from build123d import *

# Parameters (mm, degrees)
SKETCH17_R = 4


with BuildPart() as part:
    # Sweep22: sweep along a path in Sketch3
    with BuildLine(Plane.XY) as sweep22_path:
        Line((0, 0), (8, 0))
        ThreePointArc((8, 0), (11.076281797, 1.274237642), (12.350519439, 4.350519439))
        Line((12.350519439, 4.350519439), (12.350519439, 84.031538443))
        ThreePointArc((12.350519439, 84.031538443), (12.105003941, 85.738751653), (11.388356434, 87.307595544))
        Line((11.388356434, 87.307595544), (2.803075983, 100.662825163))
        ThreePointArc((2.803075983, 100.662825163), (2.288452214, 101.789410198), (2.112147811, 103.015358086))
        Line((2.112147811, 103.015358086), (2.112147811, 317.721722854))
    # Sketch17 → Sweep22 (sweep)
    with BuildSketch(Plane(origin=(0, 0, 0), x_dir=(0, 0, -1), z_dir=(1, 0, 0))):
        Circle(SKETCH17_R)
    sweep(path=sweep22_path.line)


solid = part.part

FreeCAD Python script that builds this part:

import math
import FreeCAD as App
import Part
import Sketcher
Q = App.Units.Quantity

doc = App.newDocument("Part")
body = doc.addObject("PartDesign::Body", "Body")

sketch1 = body.newObject("Sketcher::SketchObject", "Sketch")
sketch1.AttachmentSupport = (doc.getObject("YZ_Plane"), [""])
sketch1.MapMode = "FlatFace"
sketch1.addGeometry(Part.Circle(App.Vector(0, 0, 0), App.Vector(0, 0, 1), 4), False)
sketch1.addConstraint([
    Sketcher.Constraint("Coincident", 0, 3, -1, 1),
    Sketcher.Constraint("Diameter", 0, Q("8 mm")),
])

sketch2 = body.newObject("Sketcher::SketchObject", "Sketch001")
sketch2.AttachmentSupport = (doc.getObject("XY_Plane"), [""])
sketch2.MapMode = "FlatFace"
sketch2.addGeometry([
    Part.LineSegment(App.Vector(0, 0, 0), App.Vector(8, 0, 0)),
    Part.ArcOfCircle(Part.Circle(App.Vector(8, 4.4, 0), App.Vector(0, 0, 1), 4.4), math.radians(-90), math.radians(0)),
    Part.LineSegment(App.Vector(12.4, 4.4, 0), App.Vector(12.4, 84, 0)),
    Part.ArcOfCircle(Part.Circle(App.Vector(6.3, 84, 0), App.Vector(0, 0, 1), 6.1), math.radians(0), math.radians(33)),
    Part.LineSegment(App.Vector(11.4, 87.3, 0), App.Vector(2.8, 100.7, 0)),
    Part.ArcOfCircle(Part.Circle(App.Vector(6.5, 103, 0), App.Vector(0, 0, 1), 4.4), math.radians(180), math.radians(213)),
    Part.LineSegment(App.Vector(2.1, 103, 0), App.Vector(2.1, 317.7, 0)),
], False)
sketch2.addConstraint([
    Sketcher.Constraint("Tangent", 0, 2, 1, 1),
    Sketcher.Constraint("Tangent", 1, 2, 2, 1),
    Sketcher.Constraint("Tangent", 2, 2, 3, 1),
    Sketcher.Constraint("Tangent", 3, 2, 4, 1),
    Sketcher.Constraint("Tangent", 4, 2, 5, 2),
    Sketcher.Constraint("Tangent", 5, 1, 6, 1),
    Sketcher.Constraint("Horizontal", 0),
    Sketcher.Constraint("Vertical", 2),
    Sketcher.Constraint("Vertical", 6),
    Sketcher.Constraint("Coincident", 0, 1, -1, 1),
    Sketcher.Constraint("Equal", 1, 5),
    Sketcher.Constraint("DistanceX", 0, 1, 0, 2, Q("8 mm")),
    Sketcher.Constraint("Radius", 1, Q("4.350519 mm")),
    Sketcher.Constraint("Radius", 3, Q("6.058385 mm")),
    Sketcher.Constraint("DistanceY", 2, 1, 2, 2, Q("79.681019 mm")),
    Sketcher.Constraint("DistanceY", 6, 1, 6, 2, Q("214.706365 mm")),
    Sketcher.Constraint("DistanceY", -1, 1, 5, 3, Q("103.015358 mm")),
    Sketcher.Constraint("DistanceX", 3, 3, 3, 2, Q("5.096222 mm")),
])
doc.recompute()

additivepipe = body.newObject("PartDesign::AdditivePipe", "AdditivePipe")
additivepipe.Profile = sketch1
additivepipe.Spine = (sketch2, ["Edge1", "Edge2", "Edge3", "Edge4", "Edge5", "Edge6", "Edge7"])

doc.recompute()
